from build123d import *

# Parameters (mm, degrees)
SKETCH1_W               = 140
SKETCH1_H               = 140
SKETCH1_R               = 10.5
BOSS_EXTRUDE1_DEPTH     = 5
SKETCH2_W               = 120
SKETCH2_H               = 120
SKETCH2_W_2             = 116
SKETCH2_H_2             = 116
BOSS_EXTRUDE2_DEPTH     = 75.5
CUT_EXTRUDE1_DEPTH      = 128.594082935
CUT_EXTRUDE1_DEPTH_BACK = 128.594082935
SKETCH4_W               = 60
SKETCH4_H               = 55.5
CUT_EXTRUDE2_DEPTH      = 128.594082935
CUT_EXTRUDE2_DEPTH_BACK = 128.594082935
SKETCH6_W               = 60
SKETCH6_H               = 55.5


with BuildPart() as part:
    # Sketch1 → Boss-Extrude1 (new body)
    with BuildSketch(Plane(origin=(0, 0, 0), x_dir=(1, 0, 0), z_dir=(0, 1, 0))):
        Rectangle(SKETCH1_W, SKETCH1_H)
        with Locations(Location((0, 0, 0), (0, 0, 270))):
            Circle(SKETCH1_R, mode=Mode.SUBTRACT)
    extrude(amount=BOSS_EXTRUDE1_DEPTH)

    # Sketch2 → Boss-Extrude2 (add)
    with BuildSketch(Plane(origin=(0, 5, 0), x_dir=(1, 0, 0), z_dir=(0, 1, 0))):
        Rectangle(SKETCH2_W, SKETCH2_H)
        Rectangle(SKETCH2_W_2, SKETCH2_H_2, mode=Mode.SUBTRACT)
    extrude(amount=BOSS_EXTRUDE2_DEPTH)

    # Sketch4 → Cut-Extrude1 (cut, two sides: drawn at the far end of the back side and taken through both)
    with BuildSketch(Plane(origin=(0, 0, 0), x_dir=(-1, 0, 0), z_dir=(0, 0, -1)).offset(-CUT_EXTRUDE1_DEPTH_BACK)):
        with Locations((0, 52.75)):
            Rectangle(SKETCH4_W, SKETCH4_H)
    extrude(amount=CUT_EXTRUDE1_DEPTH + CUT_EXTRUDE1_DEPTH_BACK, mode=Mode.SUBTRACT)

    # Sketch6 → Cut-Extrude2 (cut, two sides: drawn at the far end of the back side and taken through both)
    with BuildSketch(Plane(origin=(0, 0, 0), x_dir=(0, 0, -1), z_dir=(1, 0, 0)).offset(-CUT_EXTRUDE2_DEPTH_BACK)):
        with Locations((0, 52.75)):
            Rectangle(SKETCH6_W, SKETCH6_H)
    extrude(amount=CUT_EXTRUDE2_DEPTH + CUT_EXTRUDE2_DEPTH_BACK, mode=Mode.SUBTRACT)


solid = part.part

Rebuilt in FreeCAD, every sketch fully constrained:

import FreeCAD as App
import Part
import Sketcher


def add_polygon(sketch, points):
    """Adds a closed chain of lines whose ends are joined by coincident constraints."""
    first, n = sketch.GeometryCount, len(points)
    for a, b in zip(points, points[1:] + points[:1]):
        sketch.addGeometry(Part.LineSegment(App.Vector(*a, 0), App.Vector(*b, 0)), False)
    for i in range(n):
        sketch.addConstraint(Sketcher.Constraint("Coincident", first + i, 2, first + (i + 1) % n, 1))

doc = App.newDocument("Part")
params = doc.addObject("Spreadsheet::Sheet", "Params")
for row, (alias, value) in enumerate([
    ("sketch1_diameter", "21 mm"),
    ("sketch1_width", "140 mm"),
    ("pad1_length", "5 mm"),
    ("sketch2_width", "120 mm"),
    ("sketch2_width2", "116 mm"),
    ("pad2_length", "75.5 mm"),
    ("sketch3_width", "60 mm"),
    ("sketch3_height", "55.5 mm"),
    ("sketch4_height", "60 mm"),
    ("sketch4_width", "55.5 mm"),
], start=1):
    params.set(f"A{row}", alias)
    params.set(f"B{row}", "=" + value)
    params.setAlias(f"B{row}", alias)

body = doc.addObject("PartDesign::Body", "Body")

# Sketch on XZ plane
sketch1 = doc.addObject("Sketcher::SketchObject", "Sketch")
body.addObject(sketch1)
sketch1.AttachmentSupport = (doc.XZ_Plane, [""])
sketch1.MapMode = "FlatFace"
add_polygon(sketch1, [(-70, -70), (-70, 70), (70, 70), (70, -70)])  # lines 0-3
sketch1.addGeometry(Part.Circle(App.Vector(0, 0, 0), App.Vector(0, 0, 1), 10), False)  # 4
sketch1.addConstraint(Sketcher.Constraint("Vertical", 0))
sketch1.addConstraint(Sketcher.Constraint("Horizontal", 1))
sketch1.addConstraint(Sketcher.Constraint("Vertical", 2))
sketch1.addConstraint(Sketcher.Constraint("Horizontal", 3))
sketch1.addConstraint(Sketcher.Constraint("Coincident", 4, 3, -1, 1))
sketch1.addConstraint(Sketcher.Constraint("Symmetric", 0, 2, 2, 2, -1, 1))
sketch1.addConstraint(Sketcher.Constraint("Equal", 3, 0))
sketch1.addConstraint(Sketcher.Constraint("Diameter", 4, 21.0))
sketch1.addConstraint(Sketcher.Constraint("DistanceX", 1, 1, 1, 2, 140.0))
sketch1.setExpression("Constraints[11]", "Params.sketch1_diameter")
sketch1.setExpression("Constraints[12]", "Params.sketch1_width")
pad1 = doc.addObject("PartDesign::Pad", "Pad")
body.addObject(pad1)
pad1.Profile = sketch1
pad1.setExpression("Length", "Params.pad1_length")
pad1.Reversed = True

# Sketch on XZ plane
sketch2 = doc.addObject("Sketcher::SketchObject", "Sketch001")
body.addObject(sketch2)
sketch2.AttachmentSupport = (doc.XZ_Plane, [""])
sketch2.MapMode = "FlatFace"
sketch2.AttachmentOffset = App.Placement(App.Vector(0, 0, -5), App.Rotation())
add_polygon(sketch2, [(-60, -60), (-60, 60), (60, 60), (60, -60)])  # lines 0-3
add_polygon(sketch2, [(58, 58), (-58, 58), (-58, -58), (58, -58)])  # lines 4-7
sketch2.addConstraint(Sketcher.Constraint("Vertical", 0))
sketch2.addConstraint(Sketcher.Constraint("Horizontal", 1))
sketch2.addConstraint(Sketcher.Constraint("Vertical", 2))
sketch2.addConstraint(Sketcher.Constraint("Horizontal", 3))
sketch2.addConstraint(Sketcher.Constraint("Horizontal", 4))
sketch2.addConstraint(Sketcher.Constraint("Vertical", 5))
sketch2.addConstraint(Sketcher.Constraint("Horizontal", 6))
sketch2.addConstraint(Sketcher.Constraint("Vertical", 7))
sketch2.addConstraint(Sketcher.Constraint("Symmetric", 0, 2, 2, 2, -1, 1))
sketch2.addConstraint(Sketcher.Constraint("Symmetric", 4, 2, 6, 2, -1, 1))
sketch2.addConstraint(Sketcher.Constraint("Equal", 3, 0))
sketch2.addConstraint(Sketcher.Constraint("Equal", 6, 5))
sketch2.addConstraint(Sketcher.Constraint("DistanceX", 1, 1, 1, 2, 120.0))
sketch2.addConstraint(Sketcher.Constraint("DistanceX", 4, 2, 4, 1, 116.0))
sketch2.setExpression("Constraints[20]", "Params.sketch2_width")
sketch2.setExpression("Constraints[21]", "Params.sketch2_width2")
pad2 = doc.addObject("PartDesign::Pad", "Pad001")
body.addObject(pad2)
pad2.Profile = sketch2
pad2.setExpression("Length", "Params.pad2_length")
pad2.Reversed = True

# Sketch on XY plane
sketch3 = doc.addObject("Sketcher::SketchObject", "Sketch002")
body.addObject(sketch3)
sketch3.AttachmentSupport = (doc.XY_Plane, [""])
sketch3.MapMode = "FlatFace"
add_polygon(sketch3, [(30, 80), (30, 25), (-30, 25), (-30, 80)])  # lines 0-3
sketch3.addConstraint(Sketcher.Constraint("Vertical", 0))
sketch3.addConstraint(Sketcher.Constraint("Horizontal", 1))
sketch3.addConstraint(Sketcher.Constraint("Vertical", 2))
sketch3.addConstraint(Sketcher.Constraint("Horizontal", 3))
sketch3.addConstraint(Sketcher.Constraint("DistanceX", 1, 2, 1, 1, 60.0))
sketch3.addConstraint(Sketcher.Constraint("DistanceY", 0, 2, 0, 1, 55.5))
sketch3.addConstraint(Sketcher.Constraint("DistanceX", -1, 1, 0, 2, 30.0))
sketch3.addConstraint(Sketcher.Constraint("DistanceY", -1, 1, 0, 2, 25.0))
sketch3.setExpression("Constraints[8]", "Params.sketch3_width")
sketch3.setExpression("Constraints[9]", "Params.sketch3_height")
pocket1 = doc.addObject("PartDesign::Pocket", "Pocket")
body.addObject(pocket1)
pocket1.Profile = sketch3
pocket1.Type = "ThroughAll"
pocket1.Midplane = True

# Sketch on YZ plane
sketch4 = doc.addObject("Sketcher::SketchObject", "Sketch003")
body.addObject(sketch4)
sketch4.AttachmentSupport = (doc.YZ_Plane, [""])
sketch4.MapMode = "FlatFace"
add_polygon(sketch4, [(80, 30), (25, 30), (25, -30), (80, -30)])  # lines 0-3
sketch4.addConstraint(Sketcher.Constraint("Horizontal", 0))
sketch4.addConstraint(Sketcher.Constraint("Vertical", 1))
sketch4.addConstraint(Sketcher.Constraint("Horizontal", 2))
sketch4.addConstraint(Sketcher.Constraint("Vertical", 3))
sketch4.addConstraint(Sketcher.Constraint("DistanceY", 1, 2, 1, 1, 60.0))
sketch4.addConstraint(Sketcher.Constraint("DistanceX", 0, 2, 0, 1, 55.5))
sketch4.addConstraint(Sketcher.Constraint("DistanceX", -1, 1, 0, 2, 25.0))
sketch4.addConstraint(Sketcher.Constraint("DistanceY", -1, 1, 0, 2, 30.0))
sketch4.setExpression("Constraints[8]", "Params.sketch4_height")
sketch4.setExpression("Constraints[9]", "Params.sketch4_width")
pocket2 = doc.addObject("PartDesign::Pocket", "Pocket001")
body.addObject(pocket2)
pocket2.Profile = sketch4
pocket2.Type = "ThroughAll"
pocket2.Midplane = True

doc.recompute()
